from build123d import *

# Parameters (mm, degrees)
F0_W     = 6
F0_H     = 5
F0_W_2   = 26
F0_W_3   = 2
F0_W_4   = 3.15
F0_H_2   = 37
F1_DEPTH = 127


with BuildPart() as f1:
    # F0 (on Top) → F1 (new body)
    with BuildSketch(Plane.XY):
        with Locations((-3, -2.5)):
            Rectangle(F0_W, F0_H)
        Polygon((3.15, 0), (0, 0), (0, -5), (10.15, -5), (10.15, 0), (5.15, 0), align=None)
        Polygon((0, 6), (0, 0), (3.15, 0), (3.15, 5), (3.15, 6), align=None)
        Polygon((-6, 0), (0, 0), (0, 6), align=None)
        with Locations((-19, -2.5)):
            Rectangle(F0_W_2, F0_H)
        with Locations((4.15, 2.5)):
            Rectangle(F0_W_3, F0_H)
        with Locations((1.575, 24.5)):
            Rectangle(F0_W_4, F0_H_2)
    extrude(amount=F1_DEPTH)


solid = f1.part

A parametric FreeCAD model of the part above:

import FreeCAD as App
import Part
import Sketcher

V = App.Vector
Q = App.Units.Quantity


def add_polygon(sketch, points):
    """Adds a closed chain of lines whose ends are joined by coincident constraints."""
    first, n = sketch.GeometryCount, len(points)
    for a, b in zip(points, points[1:] + points[:1]):
        sketch.addGeometry(Part.LineSegment(App.Vector(*a, 0), App.Vector(*b, 0)), False)
    for i in range(n):
        sketch.addConstraint(Sketcher.Constraint("Coincident", first + i, 2, first + (i + 1) % n, 1))

doc = App.newDocument("Part")
body = doc.addObject("PartDesign::Body", "Body")

sketch1 = body.newObject("Sketcher::SketchObject", "Sketch")
sketch1.AttachmentSupport = (doc.getObject("XY_Plane"), [""])
sketch1.MapMode = "FlatFace"
add_polygon(sketch1, [(10.2, -5), (10.2, 0), (5.2, 0), (5.2, 5), (3.1, 5), (3.1, 43), (0, 43), (0, 6), (-6, 0), (-32, 0), (-32, -5)])
sketch1.addConstraint([
    Sketcher.Constraint("Vertical", 0),
    Sketcher.Constraint("Horizontal", 1),
    Sketcher.Constraint("Vertical", 2),
    Sketcher.Constraint("Horizontal", 3),
    Sketcher.Constraint("Vertical", 4),
    Sketcher.Constraint("Horizontal", 5),
    Sketcher.Constraint("Vertical", 6),
    Sketcher.Constraint("Horizontal", 8),
    Sketcher.Constraint("Vertical", 9),
    Sketcher.Constraint("Horizontal", 10),
    Sketcher.Constraint("PointOnObject", 0, 2, -1),
    Sketcher.Constraint("PointOnObject", 5, 2, -2),
    Sketcher.Constraint("PointOnObject", 7, 2, -1),
    Sketcher.Constraint("Equal", 1, 0),
    Sketcher.Constraint("Equal", 0, 2),
    Sketcher.Constraint("DistanceX", 1, 2, 1, 1, 5.0),
    Sketcher.Constraint("DistanceX", 3, 2, 3, 1, 2.0),
    Sketcher.Constraint("DistanceX", 8, 2, 8, 1, 26.0),
    Sketcher.Constraint("DistanceY", 4, 1, 4, 2, 38.0),
    Sketcher.Constraint("DistanceY", 6, 2, 6, 1, 37.0),
    Sketcher.Constraint("Angle", 7, Q("-135 deg")),
    Sketcher.Constraint("DistanceX", 5, 2, 5, 1, 3.15),
])
pad1 = body.newObject("PartDesign::Pad", "Pad")
pad1.Profile = sketch1
pad1.Length = 127

doc.recompute()
